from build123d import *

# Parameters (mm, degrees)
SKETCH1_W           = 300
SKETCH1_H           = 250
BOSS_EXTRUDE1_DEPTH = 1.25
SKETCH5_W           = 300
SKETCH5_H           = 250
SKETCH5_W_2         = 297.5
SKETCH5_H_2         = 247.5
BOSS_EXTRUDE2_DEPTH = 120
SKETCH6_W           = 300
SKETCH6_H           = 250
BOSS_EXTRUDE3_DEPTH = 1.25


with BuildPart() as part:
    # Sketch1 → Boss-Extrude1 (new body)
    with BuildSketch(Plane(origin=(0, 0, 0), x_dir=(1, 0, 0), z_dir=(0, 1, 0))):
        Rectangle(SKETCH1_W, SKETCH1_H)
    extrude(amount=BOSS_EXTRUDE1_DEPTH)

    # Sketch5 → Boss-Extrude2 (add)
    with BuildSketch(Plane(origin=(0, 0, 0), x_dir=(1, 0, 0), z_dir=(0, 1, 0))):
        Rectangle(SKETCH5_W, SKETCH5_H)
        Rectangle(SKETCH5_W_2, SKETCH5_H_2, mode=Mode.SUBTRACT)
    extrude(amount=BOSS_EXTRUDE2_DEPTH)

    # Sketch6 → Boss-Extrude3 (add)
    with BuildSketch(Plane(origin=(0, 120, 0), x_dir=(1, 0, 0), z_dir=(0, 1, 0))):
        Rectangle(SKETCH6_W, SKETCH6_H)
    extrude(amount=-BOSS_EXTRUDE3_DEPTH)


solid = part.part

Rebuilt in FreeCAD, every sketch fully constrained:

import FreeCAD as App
import Part
import Sketcher
from FreeCAD import Vector

doc = App.newDocument("Part")
body = doc.addObject("PartDesign::Body", "Body")

# Sketch on XZ plane
sketch1 = doc.addObject("Sketcher::SketchObject", "Sketch")
body.addObject(sketch1)
sketch1.AttachmentSupport = (doc.XZ_Plane, [""])
sketch1.MapMode = "FlatFace"
sketch1.addGeometry([
    Part.LineSegment(Vector(-150, -125, 0), Vector(-150, 125, 0)),
    Part.LineSegment(Vector(-150, 125, 0), Vector(150, 125, 0)),
    Part.LineSegment(Vector(150, 125, 0), Vector(150, -125, 0)),
    Part.LineSegment(Vector(150, -125, 0), Vector(-150, -125, 0)),
], False)
sketch1.addConstraint([
    Sketcher.Constraint("Coincident", 0, 2, 1, 1),
    Sketcher.Constraint("Coincident", 1, 2, 2, 1),
    Sketcher.Constraint("Coincident", 2, 2, 3, 1),
    Sketcher.Constraint("Coincident", 3, 2, 0, 1),
    Sketcher.Constraint("Vertical", 0),
    Sketcher.Constraint("Horizontal", 1),
    Sketcher.Constraint("Vertical", 2),
    Sketcher.Constraint("Horizontal", 3),
    Sketcher.Constraint("Symmetric", 0, 2, 2, 2, -1, 1),
    Sketcher.Constraint("DistanceX", 1, 1, 1, 2, 300.0),
    Sketcher.Constraint("DistanceY", 0, 1, 0, 2, 250.0),
])
pad1 = doc.addObject("PartDesign::Pad", "Pad")
body.addObject(pad1)
pad1.Profile = sketch1
pad1.Length = 1.25
pad1.Reversed = True

# Sketch on XZ plane
sketch2 = doc.addObject("Sketcher::SketchObject", "Sketch001")
body.addObject(sketch2)
sketch2.AttachmentSupport = (doc.XZ_Plane, [""])
sketch2.MapMode = "FlatFace"
sketch2.addGeometry([
    Part.LineSegment(Vector(-150, -125, 0), Vector(-150, 125, 0)),  # 0
    Part.LineSegment(Vector(-150, 125, 0), Vector(150, 125, 0)),  # 1
    Part.LineSegment(Vector(150, 125, 0), Vector(150, -125, 0)),  # 2
    Part.LineSegment(Vector(150, -125, 0), Vector(-150, -125, 0)),  # 3
    Part.LineSegment(Vector(149, 124, 0), Vector(-149, 124, 0)),  # 4
    Part.LineSegment(Vector(-149, 124, 0), Vector(-149, -124, 0)),  # 5
    Part.LineSegment(Vector(-149, -124, 0), Vector(149, -124, 0)),  # 6
    Part.LineSegment(Vector(149, -124, 0), Vector(149, 124, 0)),  # 7
], False)
sketch2.addConstraint([
    Sketcher.Constraint("Coincident", 0, 2, 1, 1),
    Sketcher.Constraint("Coincident", 1, 2, 2, 1),
    Sketcher.Constraint("Coincident", 2, 2, 3, 1),
    Sketcher.Constraint("Coincident", 3, 2, 0, 1),
    Sketcher.Constraint("Coincident", 4, 2, 5, 1),
    Sketcher.Constraint("Coincident", 5, 2, 6, 1),
    Sketcher.Constraint("Coincident", 6, 2, 7, 1),
    Sketcher.Constraint("Coincident", 7, 2, 4, 1),
    Sketcher.Constraint("Vertical", 0),
    Sketcher.Constraint("Horizontal", 1),
    Sketcher.Constraint("Vertical", 2),
    Sketcher.Constraint("Horizontal", 3),
    Sketcher.Constraint("Horizontal", 4),
    Sketcher.Constraint("Vertical", 5),
    Sketcher.Constraint("Horizontal", 6),
    Sketcher.Constraint("Vertical", 7),
    Sketcher.Constraint("Symmetric", 0, 2, 2, 2, -1, 1),
    Sketcher.Constraint("Symmetric", 4, 2, 6, 2, -1, 1),
    Sketcher.Constraint("DistanceX", 1, 1, 1, 2, 300.0),
    Sketcher.Constraint("DistanceY", 0, 1, 0, 2, 250.0),
    Sketcher.Constraint("DistanceX", 4, 2, 4, 1, 297.5),
    Sketcher.Constraint("DistanceY", 5, 2, 5, 1, 247.5),
])
pad2 = doc.addObject("PartDesign::Pad", "Pad001")
body.addObject(pad2)
pad2.Profile = sketch2
pad2.Length = 120
pad2.Reversed = True

# Sketch on XZ plane
sketch3 = doc.addObject("Sketcher::SketchObject", "Sketch002")
body.addObject(sketch3)
sketch3.AttachmentSupport = (doc.XZ_Plane, [""])
sketch3.MapMode = "FlatFace"
sketch3.AttachmentOffset = App.Placement(Vector(0, 0, -120), App.Rotation())
sketch3.addGeometry([
    Part.LineSegment(Vector(-150, -125, 0), Vector(-150, 125, 0)),
    Part.LineSegment(Vector(-150, 125, 0), Vector(150, 125, 0)),
    Part.LineSegment(Vector(150, 125, 0), Vector(150, -125, 0)),
    Part.LineSegment(Vector(150, -125, 0), Vector(-150, -125, 0)),
], False)
sketch3.addConstraint([
    Sketcher.Constraint("Coincident", 0, 2, 1, 1),
    Sketcher.Constraint("Coincident", 1, 2, 2, 1),
    Sketcher.Constraint("Coincident", 2, 2, 3, 1),
    Sketcher.Constraint("Coincident", 3, 2, 0, 1),
    Sketcher.Constraint("Vertical", 0),
    Sketcher.Constraint("Horizontal", 1),
    Sketcher.Constraint("Vertical", 2),
    Sketcher.Constraint("Horizontal", 3),
    Sketcher.Constraint("Symmetric", 0, 2, 2, 2, -1, 1),
    Sketcher.Constraint("DistanceX", 1, 1, 1, 2, 300.0),
    Sketcher.Constraint("DistanceY", 0, 1, 0, 2, 250.0),
])
pad3 = doc.addObject("PartDesign::Pad", "Pad002")
body.addObject(pad3)
pad3.Profile = sketch3
pad3.Length = 1.25

doc.recompute()
